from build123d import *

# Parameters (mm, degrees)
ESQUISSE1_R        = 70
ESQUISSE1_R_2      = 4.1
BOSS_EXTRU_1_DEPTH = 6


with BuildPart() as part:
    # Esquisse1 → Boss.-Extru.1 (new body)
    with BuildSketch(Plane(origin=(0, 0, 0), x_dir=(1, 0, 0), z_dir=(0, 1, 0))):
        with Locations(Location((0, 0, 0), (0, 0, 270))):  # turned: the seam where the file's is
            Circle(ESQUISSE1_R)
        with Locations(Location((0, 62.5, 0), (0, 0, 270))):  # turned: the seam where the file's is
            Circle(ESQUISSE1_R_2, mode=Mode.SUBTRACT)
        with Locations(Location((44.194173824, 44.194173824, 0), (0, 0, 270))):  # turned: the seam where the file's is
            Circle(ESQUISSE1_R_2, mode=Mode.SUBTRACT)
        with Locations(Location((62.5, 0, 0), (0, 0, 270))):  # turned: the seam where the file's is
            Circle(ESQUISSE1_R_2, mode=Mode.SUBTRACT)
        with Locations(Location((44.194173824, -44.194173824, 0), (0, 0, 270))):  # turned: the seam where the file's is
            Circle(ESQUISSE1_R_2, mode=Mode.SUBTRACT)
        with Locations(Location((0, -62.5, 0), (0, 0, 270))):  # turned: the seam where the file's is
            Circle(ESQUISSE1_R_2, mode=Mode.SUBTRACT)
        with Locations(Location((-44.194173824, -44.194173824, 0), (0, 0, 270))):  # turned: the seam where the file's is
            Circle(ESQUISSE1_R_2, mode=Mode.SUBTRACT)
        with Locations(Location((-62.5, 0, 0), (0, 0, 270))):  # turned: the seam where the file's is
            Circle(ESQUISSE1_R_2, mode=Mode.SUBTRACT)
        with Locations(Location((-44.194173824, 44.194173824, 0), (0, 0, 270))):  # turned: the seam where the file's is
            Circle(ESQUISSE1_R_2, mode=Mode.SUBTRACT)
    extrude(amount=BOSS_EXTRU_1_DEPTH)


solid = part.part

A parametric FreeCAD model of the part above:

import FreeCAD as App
import Part
import Sketcher
from FreeCAD import Vector
Q = App.Units.Quantity

doc = App.newDocument("Part")
body = doc.addObject("PartDesign::Body", "Body")

# Sketch on XZ plane
sketch1 = body.newObject("Sketcher::SketchObject", "Sketch")
sketch1.AttachmentSupport = (doc.getObject("XZ_Plane"), [""])
sketch1.MapMode = "FlatFace"
sketch1.addGeometry([
    Part.Circle(Vector(0, 0, 0), Vector(0, 0, 1), 70),  # 0
    Part.Circle(Vector(-44.194174, -44.194174, 0), Vector(0, 0, 1), 4.1),  # 1
    Part.Circle(Vector(-62.5, 0, 0), Vector(0, 0, 1), 4.1),  # 2
    Part.Circle(Vector(-44.194174, 44.194174, 0), Vector(0, 0, 1), 4.1),  # 3
    Part.Circle(Vector(0, -62.5, 0), Vector(0, 0, 1), 4.1),  # 4
    Part.Circle(Vector(44.194174, -44.194174, 0), Vector(0, 0, 1), 4.1),  # 5
    Part.Circle(Vector(62.5, 0, 0), Vector(0, 0, 1), 4.1),  # 6
    Part.Circle(Vector(0, 62.5, 0), Vector(0, 0, 1), 4.1),  # 7
    Part.Circle(Vector(44.194174, 44.194174, 0), Vector(0, 0, 1), 4.1),  # 8
], False)
sketch1.addConstraint([
    Sketcher.Constraint("Coincident", 0, 3, -1, 1),
    Sketcher.Constraint("Equal", 1, 2),
    Sketcher.Constraint("Equal", 2, 3),
    Sketcher.Constraint("Equal", 3, 4),
    Sketcher.Constraint("Equal", 4, 5),
    Sketcher.Constraint("Equal", 5, 6),
    Sketcher.Constraint("Equal", 6, 7),
    Sketcher.Constraint("Equal", 7, 8),
    Sketcher.Constraint("Symmetric", 3, 3, 5, 3, -1, 1),
    Sketcher.Constraint("Symmetric", 2, 3, 6, 3, -1, 1),
    Sketcher.Constraint("Symmetric", 4, 3, 7, 3, -1, 1),
    Sketcher.Constraint("Symmetric", 1, 3, 8, 3, -1, 1),
    Sketcher.Constraint("Symmetric", 1, 3, 5, 3, -2),
    Sketcher.Constraint("PointOnObject", 2, 3, -1),
    Sketcher.Constraint("PointOnObject", 4, 3, -2),
    Sketcher.Constraint("Diameter", 0, Q("140 mm")),
    Sketcher.Constraint("Diameter", 1, Q("8.2 mm")),
    Sketcher.Constraint("DistanceX", 2, 3, -1, 1, Q("62.5 mm")),
    Sketcher.Constraint("DistanceY", 4, 3, -1, 1, Q("62.5 mm")),
    Sketcher.Constraint("DistanceX", 1, 3, -1, 1, Q("44.194174 mm")),
    Sketcher.Constraint("DistanceY", 1, 3, -1, 1, Q("44.194174 mm")),
])
pad1 = body.newObject("PartDesign::Pad", "Pad")
pad1.Profile = sketch1
pad1.Length = 6
pad1.Reversed = True

doc.recompute()
